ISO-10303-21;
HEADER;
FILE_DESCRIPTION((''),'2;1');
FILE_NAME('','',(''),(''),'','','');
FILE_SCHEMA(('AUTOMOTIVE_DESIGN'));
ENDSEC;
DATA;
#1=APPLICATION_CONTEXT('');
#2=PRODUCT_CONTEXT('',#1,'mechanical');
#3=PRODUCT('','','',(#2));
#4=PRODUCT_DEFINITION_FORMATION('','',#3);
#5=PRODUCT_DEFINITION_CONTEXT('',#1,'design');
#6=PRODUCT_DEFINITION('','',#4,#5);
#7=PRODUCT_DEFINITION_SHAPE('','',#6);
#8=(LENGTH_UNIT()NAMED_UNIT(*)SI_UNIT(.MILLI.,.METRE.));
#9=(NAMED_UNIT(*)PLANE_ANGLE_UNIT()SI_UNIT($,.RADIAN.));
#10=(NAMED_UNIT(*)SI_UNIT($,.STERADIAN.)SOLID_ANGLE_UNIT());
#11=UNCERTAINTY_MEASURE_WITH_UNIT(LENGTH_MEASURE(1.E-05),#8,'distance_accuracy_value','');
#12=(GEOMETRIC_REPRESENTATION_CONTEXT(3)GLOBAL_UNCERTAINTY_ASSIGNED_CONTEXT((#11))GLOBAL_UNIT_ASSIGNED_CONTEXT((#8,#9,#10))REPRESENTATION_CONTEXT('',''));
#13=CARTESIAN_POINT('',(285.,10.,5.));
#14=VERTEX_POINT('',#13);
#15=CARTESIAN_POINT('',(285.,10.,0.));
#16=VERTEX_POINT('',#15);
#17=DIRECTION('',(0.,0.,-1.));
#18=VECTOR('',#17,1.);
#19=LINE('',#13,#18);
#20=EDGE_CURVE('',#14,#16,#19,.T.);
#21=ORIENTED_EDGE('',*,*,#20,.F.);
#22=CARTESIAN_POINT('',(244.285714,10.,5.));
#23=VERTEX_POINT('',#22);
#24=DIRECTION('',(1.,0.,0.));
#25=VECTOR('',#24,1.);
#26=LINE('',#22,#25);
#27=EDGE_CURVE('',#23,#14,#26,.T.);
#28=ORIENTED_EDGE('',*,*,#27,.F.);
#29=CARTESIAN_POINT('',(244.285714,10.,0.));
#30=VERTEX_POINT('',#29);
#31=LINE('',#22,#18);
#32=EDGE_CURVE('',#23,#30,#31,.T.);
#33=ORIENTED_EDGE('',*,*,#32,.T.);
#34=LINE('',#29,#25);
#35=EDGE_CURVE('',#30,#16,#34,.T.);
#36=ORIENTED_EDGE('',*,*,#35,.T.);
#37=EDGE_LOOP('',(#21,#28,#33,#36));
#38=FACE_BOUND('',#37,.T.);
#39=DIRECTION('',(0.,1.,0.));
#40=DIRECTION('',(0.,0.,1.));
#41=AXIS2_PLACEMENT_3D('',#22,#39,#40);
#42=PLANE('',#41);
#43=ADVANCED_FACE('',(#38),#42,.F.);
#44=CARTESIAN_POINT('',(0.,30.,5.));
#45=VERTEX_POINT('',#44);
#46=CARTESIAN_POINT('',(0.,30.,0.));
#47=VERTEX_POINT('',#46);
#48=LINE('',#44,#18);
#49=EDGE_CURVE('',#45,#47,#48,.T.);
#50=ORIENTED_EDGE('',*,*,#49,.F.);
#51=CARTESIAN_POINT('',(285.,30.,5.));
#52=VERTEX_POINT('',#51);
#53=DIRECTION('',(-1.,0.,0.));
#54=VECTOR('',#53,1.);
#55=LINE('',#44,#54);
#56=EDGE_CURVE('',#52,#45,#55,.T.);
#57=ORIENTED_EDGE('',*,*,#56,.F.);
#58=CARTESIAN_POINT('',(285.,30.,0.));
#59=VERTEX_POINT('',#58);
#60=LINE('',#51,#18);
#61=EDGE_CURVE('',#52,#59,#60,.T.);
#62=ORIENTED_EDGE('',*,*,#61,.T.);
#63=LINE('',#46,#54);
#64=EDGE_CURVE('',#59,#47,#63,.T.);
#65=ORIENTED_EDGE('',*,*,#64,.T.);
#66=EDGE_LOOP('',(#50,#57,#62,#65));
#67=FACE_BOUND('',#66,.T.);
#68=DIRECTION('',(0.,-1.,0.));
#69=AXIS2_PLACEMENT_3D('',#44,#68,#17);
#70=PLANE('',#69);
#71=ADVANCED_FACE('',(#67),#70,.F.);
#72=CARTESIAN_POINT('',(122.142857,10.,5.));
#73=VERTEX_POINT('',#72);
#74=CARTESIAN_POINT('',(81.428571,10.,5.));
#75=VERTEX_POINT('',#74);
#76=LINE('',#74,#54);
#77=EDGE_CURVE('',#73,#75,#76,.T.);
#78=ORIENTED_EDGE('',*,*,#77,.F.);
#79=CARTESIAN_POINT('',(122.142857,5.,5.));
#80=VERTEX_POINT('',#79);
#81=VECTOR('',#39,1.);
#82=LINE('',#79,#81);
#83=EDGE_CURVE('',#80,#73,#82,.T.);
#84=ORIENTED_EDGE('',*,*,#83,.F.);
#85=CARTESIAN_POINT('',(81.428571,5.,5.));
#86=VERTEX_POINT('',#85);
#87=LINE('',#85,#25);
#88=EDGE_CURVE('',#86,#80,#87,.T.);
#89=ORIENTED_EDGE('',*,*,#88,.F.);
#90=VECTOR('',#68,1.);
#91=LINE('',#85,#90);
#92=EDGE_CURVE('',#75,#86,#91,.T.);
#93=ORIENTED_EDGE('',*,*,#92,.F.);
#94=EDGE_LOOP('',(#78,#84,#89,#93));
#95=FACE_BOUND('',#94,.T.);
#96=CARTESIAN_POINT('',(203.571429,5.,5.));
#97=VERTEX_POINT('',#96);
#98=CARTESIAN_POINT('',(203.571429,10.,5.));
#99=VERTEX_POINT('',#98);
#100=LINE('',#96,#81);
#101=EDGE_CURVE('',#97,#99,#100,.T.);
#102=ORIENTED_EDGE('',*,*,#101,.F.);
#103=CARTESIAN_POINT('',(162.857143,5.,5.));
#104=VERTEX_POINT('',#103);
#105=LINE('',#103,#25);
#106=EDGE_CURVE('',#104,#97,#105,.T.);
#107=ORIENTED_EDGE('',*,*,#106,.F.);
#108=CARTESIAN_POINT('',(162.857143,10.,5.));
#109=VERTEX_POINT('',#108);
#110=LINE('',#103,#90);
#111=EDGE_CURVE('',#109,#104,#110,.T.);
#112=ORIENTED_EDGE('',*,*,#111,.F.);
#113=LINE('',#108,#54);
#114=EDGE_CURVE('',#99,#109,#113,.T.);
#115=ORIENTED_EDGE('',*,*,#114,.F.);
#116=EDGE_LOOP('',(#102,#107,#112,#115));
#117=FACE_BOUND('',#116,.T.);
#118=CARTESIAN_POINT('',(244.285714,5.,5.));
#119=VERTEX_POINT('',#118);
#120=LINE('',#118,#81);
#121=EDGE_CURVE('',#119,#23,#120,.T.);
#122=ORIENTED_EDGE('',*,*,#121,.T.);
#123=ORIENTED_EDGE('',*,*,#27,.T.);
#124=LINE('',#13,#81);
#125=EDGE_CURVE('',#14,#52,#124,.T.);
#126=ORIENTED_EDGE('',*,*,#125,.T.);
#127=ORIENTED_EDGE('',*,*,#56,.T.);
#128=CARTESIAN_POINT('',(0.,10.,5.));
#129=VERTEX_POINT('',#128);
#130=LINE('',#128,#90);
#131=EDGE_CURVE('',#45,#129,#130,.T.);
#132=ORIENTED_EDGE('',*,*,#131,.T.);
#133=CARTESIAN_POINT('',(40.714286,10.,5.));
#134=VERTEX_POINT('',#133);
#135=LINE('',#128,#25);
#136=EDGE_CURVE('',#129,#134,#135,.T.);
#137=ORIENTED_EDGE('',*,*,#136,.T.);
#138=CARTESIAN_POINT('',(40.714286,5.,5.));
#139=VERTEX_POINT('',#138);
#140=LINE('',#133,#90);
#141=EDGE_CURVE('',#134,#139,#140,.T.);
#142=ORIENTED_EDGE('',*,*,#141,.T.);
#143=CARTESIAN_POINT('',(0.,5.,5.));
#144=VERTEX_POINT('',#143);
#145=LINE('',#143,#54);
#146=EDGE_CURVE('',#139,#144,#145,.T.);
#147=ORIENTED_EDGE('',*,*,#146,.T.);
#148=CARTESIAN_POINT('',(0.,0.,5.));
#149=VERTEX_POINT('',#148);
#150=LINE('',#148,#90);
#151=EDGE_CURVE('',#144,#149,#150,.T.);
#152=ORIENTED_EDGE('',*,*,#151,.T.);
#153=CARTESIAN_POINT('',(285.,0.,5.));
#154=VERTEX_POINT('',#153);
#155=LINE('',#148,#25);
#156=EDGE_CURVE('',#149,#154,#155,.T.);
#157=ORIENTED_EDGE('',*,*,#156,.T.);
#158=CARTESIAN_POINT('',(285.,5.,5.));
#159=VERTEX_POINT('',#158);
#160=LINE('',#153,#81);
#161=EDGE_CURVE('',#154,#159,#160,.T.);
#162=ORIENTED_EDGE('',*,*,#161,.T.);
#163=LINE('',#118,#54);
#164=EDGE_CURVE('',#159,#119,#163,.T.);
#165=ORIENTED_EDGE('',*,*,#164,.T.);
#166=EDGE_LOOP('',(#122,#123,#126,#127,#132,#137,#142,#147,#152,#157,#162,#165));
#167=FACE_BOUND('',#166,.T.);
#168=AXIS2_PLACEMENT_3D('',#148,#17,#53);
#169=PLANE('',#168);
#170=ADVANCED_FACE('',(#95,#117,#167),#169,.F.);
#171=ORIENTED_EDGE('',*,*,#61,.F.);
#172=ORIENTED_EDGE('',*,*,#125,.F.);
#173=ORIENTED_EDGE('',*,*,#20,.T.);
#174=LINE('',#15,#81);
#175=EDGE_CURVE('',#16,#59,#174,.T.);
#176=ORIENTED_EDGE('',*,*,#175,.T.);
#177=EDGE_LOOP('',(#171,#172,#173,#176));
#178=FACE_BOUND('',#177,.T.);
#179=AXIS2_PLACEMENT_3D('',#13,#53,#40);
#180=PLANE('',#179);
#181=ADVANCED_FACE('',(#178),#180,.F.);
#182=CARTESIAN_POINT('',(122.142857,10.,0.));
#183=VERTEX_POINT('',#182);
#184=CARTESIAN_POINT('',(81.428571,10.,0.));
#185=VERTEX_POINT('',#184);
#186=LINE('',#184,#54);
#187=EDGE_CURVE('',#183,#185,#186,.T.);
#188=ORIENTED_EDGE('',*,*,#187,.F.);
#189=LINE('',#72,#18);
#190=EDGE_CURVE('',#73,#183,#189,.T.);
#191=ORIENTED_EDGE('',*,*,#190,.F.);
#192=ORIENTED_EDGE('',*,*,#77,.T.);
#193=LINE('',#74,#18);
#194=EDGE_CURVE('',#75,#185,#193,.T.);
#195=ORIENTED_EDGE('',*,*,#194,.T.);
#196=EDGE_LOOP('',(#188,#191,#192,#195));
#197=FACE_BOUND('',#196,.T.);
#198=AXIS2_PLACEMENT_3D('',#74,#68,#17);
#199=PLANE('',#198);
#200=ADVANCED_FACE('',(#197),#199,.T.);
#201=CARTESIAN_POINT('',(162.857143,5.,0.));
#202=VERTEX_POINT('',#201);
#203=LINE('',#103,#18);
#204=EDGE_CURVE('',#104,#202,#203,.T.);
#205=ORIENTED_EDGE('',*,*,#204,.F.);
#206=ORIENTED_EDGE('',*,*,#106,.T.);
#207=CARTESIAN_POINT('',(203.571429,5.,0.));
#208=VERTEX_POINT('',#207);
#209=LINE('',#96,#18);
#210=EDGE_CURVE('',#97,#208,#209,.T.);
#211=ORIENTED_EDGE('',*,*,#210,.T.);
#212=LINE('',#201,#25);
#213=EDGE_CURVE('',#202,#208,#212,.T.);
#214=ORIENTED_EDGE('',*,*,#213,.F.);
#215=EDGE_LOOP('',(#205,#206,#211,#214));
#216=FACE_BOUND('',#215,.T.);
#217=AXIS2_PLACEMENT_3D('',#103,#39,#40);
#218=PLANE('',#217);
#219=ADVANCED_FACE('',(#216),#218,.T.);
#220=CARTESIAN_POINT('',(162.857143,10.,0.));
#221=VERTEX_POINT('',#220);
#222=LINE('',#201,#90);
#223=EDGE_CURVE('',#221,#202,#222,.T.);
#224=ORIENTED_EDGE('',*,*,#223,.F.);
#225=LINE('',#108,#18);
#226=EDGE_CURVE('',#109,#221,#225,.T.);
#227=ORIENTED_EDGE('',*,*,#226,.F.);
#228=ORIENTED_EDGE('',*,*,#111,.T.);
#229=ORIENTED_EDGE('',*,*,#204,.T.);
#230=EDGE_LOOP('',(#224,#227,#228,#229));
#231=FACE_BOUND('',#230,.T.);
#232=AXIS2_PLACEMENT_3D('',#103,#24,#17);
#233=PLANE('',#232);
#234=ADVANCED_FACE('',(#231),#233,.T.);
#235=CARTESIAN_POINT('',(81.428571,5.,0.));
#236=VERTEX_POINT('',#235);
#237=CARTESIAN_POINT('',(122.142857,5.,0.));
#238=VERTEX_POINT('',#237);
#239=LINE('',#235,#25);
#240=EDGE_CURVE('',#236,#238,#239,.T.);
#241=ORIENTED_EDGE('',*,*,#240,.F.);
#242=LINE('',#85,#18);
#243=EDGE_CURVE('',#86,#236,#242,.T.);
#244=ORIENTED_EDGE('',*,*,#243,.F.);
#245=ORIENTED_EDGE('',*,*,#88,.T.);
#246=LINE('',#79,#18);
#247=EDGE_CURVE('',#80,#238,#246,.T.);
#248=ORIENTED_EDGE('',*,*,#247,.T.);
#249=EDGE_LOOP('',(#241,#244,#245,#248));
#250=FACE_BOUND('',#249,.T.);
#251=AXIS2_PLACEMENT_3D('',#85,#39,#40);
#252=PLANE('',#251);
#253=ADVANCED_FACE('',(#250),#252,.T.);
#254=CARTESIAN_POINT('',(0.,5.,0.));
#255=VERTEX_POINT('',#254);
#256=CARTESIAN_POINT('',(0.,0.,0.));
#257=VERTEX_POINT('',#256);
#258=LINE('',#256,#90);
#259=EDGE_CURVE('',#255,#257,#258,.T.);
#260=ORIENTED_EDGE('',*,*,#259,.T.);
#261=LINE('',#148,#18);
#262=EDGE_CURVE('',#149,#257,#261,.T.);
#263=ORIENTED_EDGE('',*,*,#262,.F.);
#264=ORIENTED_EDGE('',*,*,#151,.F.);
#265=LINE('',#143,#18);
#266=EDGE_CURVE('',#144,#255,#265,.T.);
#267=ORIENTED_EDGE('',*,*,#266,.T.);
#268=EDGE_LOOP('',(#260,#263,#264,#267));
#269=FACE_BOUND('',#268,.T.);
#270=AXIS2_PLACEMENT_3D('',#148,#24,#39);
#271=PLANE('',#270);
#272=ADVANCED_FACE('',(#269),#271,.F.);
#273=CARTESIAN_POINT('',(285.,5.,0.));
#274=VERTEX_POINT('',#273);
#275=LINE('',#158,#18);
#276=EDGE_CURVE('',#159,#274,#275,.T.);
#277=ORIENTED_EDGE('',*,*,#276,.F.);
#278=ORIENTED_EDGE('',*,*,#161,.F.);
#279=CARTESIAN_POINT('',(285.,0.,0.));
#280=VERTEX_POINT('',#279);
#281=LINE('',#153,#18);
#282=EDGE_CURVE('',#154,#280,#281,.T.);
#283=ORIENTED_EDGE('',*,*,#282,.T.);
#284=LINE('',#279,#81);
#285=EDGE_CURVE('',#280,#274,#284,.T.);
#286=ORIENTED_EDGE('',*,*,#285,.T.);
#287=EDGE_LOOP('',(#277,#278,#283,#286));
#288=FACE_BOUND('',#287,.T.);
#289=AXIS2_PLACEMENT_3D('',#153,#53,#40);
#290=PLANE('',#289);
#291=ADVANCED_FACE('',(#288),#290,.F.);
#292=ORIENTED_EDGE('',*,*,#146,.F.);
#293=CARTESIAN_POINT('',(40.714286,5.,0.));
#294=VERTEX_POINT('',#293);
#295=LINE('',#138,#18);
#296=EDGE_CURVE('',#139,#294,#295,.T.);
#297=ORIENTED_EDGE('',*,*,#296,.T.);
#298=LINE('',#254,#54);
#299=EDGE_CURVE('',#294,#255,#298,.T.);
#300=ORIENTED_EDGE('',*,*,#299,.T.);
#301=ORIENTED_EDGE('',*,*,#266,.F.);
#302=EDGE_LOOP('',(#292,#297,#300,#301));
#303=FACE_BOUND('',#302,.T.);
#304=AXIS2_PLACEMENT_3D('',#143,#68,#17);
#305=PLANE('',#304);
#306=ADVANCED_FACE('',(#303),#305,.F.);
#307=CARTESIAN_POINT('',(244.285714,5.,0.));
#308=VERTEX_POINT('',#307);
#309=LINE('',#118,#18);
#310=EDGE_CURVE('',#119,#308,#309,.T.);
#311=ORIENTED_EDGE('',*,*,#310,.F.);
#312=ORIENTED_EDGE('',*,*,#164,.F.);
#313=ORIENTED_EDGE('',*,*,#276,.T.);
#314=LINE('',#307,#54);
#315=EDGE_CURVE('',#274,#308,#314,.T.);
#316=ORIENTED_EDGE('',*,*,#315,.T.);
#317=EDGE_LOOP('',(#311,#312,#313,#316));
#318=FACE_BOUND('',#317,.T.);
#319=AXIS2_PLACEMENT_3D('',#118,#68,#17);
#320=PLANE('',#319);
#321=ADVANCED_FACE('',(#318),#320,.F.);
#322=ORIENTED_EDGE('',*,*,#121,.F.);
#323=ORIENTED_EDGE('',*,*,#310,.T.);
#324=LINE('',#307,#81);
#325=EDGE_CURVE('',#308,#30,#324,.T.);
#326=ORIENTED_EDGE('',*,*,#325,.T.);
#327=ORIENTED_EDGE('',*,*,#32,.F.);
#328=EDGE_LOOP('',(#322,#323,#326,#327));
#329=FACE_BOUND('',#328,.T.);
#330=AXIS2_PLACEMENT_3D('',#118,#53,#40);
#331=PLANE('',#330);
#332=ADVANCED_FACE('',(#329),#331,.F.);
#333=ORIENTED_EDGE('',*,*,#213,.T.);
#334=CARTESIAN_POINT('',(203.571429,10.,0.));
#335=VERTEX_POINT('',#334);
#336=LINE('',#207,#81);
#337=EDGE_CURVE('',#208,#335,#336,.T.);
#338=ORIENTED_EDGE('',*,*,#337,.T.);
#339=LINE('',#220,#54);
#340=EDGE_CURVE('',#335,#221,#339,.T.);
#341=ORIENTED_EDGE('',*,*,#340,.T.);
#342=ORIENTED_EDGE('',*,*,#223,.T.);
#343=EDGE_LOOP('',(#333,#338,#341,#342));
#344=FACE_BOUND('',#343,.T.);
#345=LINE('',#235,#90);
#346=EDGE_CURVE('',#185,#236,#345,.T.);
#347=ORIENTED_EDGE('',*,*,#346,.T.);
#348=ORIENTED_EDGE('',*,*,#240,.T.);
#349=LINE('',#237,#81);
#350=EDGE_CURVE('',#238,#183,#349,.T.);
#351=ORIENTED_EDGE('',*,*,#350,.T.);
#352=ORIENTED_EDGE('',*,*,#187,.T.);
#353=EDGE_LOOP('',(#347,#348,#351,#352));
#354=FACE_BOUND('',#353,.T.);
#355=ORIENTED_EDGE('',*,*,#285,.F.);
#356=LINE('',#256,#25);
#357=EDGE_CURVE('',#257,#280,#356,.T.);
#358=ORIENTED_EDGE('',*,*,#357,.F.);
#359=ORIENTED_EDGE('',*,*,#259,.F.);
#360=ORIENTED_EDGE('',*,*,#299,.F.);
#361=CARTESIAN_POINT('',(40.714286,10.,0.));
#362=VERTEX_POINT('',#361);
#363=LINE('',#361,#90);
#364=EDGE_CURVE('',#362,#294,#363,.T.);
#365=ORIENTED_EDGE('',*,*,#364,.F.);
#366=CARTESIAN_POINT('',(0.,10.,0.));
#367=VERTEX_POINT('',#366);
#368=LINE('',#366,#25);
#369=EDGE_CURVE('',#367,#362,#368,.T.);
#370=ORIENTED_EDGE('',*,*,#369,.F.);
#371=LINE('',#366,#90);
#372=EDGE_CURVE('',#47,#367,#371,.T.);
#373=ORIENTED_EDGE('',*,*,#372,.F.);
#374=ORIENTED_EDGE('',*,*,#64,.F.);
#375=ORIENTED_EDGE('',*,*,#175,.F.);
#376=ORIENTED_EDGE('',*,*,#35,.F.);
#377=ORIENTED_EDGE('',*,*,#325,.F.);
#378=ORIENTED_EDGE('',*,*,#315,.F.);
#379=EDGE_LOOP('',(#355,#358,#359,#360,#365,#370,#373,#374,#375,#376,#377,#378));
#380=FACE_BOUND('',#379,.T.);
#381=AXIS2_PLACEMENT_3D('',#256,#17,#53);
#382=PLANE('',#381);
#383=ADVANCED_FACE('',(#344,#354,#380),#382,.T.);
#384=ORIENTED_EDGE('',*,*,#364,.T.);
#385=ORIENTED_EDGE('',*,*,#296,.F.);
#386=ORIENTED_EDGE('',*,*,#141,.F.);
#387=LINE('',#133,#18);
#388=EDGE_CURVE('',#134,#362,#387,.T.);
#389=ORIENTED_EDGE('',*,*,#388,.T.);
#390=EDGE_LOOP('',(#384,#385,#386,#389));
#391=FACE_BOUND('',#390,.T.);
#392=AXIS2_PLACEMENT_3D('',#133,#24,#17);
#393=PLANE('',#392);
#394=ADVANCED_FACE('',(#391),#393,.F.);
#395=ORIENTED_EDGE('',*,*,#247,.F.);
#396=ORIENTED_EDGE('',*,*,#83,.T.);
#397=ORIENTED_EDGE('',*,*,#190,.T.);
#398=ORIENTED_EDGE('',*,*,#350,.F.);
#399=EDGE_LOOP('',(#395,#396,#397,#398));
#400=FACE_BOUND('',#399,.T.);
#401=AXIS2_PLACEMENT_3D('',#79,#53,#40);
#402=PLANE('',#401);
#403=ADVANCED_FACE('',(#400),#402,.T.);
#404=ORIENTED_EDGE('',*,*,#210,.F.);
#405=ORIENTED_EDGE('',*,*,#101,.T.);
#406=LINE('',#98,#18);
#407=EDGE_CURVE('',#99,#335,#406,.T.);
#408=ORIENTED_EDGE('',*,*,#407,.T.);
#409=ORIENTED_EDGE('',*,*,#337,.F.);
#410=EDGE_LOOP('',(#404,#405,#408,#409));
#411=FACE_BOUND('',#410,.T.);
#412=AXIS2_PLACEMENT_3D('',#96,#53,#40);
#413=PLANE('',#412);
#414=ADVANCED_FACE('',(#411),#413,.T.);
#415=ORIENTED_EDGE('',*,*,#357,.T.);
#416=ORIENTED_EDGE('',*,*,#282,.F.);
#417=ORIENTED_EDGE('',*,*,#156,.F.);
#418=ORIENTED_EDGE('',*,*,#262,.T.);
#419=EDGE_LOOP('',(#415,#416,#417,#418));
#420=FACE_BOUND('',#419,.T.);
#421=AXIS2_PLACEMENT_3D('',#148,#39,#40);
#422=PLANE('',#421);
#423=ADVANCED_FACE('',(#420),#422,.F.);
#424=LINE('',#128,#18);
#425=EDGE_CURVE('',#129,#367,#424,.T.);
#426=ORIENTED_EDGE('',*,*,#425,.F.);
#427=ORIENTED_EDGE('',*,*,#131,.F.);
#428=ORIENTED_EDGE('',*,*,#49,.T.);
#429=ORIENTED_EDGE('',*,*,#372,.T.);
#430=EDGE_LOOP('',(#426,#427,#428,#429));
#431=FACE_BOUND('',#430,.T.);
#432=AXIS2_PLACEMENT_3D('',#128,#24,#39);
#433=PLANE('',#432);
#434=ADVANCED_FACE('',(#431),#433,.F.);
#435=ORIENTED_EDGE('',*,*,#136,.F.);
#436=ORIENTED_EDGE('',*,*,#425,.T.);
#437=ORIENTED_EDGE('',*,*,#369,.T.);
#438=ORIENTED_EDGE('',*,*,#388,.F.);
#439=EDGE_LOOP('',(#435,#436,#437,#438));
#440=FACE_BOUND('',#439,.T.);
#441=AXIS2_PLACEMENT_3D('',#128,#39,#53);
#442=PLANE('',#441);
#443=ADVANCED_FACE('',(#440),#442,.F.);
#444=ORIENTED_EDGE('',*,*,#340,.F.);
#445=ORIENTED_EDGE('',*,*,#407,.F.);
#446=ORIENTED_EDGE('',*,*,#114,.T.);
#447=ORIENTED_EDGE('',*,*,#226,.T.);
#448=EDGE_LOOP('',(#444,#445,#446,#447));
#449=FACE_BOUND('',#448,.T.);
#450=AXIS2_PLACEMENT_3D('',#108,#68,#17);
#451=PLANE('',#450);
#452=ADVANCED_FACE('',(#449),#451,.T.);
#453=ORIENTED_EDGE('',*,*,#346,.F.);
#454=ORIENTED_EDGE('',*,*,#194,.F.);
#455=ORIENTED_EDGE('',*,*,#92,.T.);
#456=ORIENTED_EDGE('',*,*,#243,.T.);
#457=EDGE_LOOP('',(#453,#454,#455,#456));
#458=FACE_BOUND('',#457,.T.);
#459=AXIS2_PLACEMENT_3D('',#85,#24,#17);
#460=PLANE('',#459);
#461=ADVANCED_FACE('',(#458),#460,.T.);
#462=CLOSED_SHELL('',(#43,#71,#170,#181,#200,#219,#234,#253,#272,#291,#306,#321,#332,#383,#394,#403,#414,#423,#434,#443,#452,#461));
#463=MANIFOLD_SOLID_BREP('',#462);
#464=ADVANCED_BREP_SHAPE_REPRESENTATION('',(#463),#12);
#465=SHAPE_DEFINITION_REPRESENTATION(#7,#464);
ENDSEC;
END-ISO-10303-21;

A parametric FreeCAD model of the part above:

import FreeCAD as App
import Part
import Sketcher

V = App.Vector
Q = App.Units.Quantity

doc = App.newDocument("Part")
body = doc.addObject("PartDesign::Body", "Body")

sketch1 = doc.addObject("Sketcher::SketchObject", "Sketch")
body.addObject(sketch1)
sketch1.AttachmentSupport = (doc.XY_Plane, [""])
sketch1.MapMode = "FlatFace"
sketch1.addGeometry(Part.LineSegment(V(0, 30, 0), V(0, 10, 0)), False)
sketch1.addGeometry(Part.LineSegment(V(0, 10, 0), V(41, 10, 0)), False)
sketch1.addGeometry(Part.LineSegment(V(41, 10, 0), V(41, 5, 0)), False)
sketch1.addGeometry(Part.LineSegment(V(41, 5, 0), V(0, 5, 0)), False)
sketch1.addGeometry(Part.LineSegment(V(0, 5, 0), V(0, 0, 0)), False)
sketch1.addGeometry(Part.LineSegment(V(0, 0, 0), V(285, 0, 0)), False)
sketch1.addGeometry(Part.LineSegment(V(285, 0, 0), V(285, 5, 0)), False)
sketch1.addGeometry(Part.LineSegment(V(285, 5, 0), V(244, 5, 0)), False)
sketch1.addGeometry(Part.LineSegment(V(244, 5, 0), V(244, 10, 0)), False)
sketch1.addGeometry(Part.LineSegment(V(244, 10, 0), V(285, 10, 0)), False)
sketch1.addGeometry(Part.LineSegment(V(285, 10, 0), V(285, 30, 0)), False)
sketch1.addGeometry(Part.LineSegment(V(285, 30, 0), V(0, 30, 0)), False)
sketch1.addGeometry(Part.LineSegment(V(163, 5, 0), V(163, 10, 0)), False)
sketch1.addGeometry(Part.LineSegment(V(163, 10, 0), V(204, 10, 0)), False)
sketch1.addGeometry(Part.LineSegment(V(204, 10, 0), V(204, 5, 0)), False)
sketch1.addGeometry(Part.LineSegment(V(204, 5, 0), V(163, 5, 0)), False)
sketch1.addGeometry(Part.LineSegment(V(81, 5, 0), V(81, 10, 0)), False)
sketch1.addGeometry(Part.LineSegment(V(81, 10, 0), V(122, 10, 0)), False)
sketch1.addGeometry(Part.LineSegment(V(122, 10, 0), V(122, 5, 0)), False)
sketch1.addGeometry(Part.LineSegment(V(122, 5, 0), V(81, 5, 0)), False)
sketch1.addConstraint(Sketcher.Constraint("Coincident", 0, 2, 1, 1))
sketch1.addConstraint(Sketcher.Constraint("Coincident", 1, 2, 2, 1))
sketch1.addConstraint(Sketcher.Constraint("Coincident", 2, 2, 3, 1))
sketch1.addConstraint(Sketcher.Constraint("Coincident", 3, 2, 4, 1))
sketch1.addConstraint(Sketcher.Constraint("Coincident", 4, 2, 5, 1))
sketch1.addConstraint(Sketcher.Constraint("Coincident", 5, 2, 6, 1))
sketch1.addConstraint(Sketcher.Constraint("Coincident", 6, 2, 7, 1))
sketch1.addConstraint(Sketcher.Constraint("Coincident", 7, 2, 8, 1))
sketch1.addConstraint(Sketcher.Constraint("Coincident", 8, 2, 9, 1))
sketch1.addConstraint(Sketcher.Constraint("Coincident", 9, 2, 10, 1))
sketch1.addConstraint(Sketcher.Constraint("Coincident", 10, 2, 11, 1))
sketch1.addConstraint(Sketcher.Constraint("Coincident", 11, 2, 0, 1))
sketch1.addConstraint(Sketcher.Constraint("Coincident", 12, 2, 13, 1))
sketch1.addConstraint(Sketcher.Constraint("Coincident", 13, 2, 14, 1))
sketch1.addConstraint(Sketcher.Constraint("Coincident", 14, 2, 15, 1))
sketch1.addConstraint(Sketcher.Constraint("Coincident", 15, 2, 12, 1))
sketch1.addConstraint(Sketcher.Constraint("Coincident", 16, 2, 17, 1))
sketch1.addConstraint(Sketcher.Constraint("Coincident", 17, 2, 18, 1))
sketch1.addConstraint(Sketcher.Constraint("Coincident", 18, 2, 19, 1))
sketch1.addConstraint(Sketcher.Constraint("Coincident", 19, 2, 16, 1))
sketch1.addConstraint(Sketcher.Constraint("Vertical", 0))
sketch1.addConstraint(Sketcher.Constraint("Horizontal", 1))
sketch1.addConstraint(Sketcher.Constraint("Vertical", 2))
sketch1.addConstraint(Sketcher.Constraint("Horizontal", 3))
sketch1.addConstraint(Sketcher.Constraint("Vertical", 4))
sketch1.addConstraint(Sketcher.Constraint("Horizontal", 5))
sketch1.addConstraint(Sketcher.Constraint("Vertical", 6))
sketch1.addConstraint(Sketcher.Constraint("Horizontal", 7))
sketch1.addConstraint(Sketcher.Constraint("Vertical", 8))
sketch1.addConstraint(Sketcher.Constraint("Horizontal", 9))
sketch1.addConstraint(Sketcher.Constraint("Vertical", 10))
sketch1.addConstraint(Sketcher.Constraint("Horizontal", 11))
sketch1.addConstraint(Sketcher.Constraint("Vertical", 12))
sketch1.addConstraint(Sketcher.Constraint("Horizontal", 13))
sketch1.addConstraint(Sketcher.Constraint("Vertical", 14))
sketch1.addConstraint(Sketcher.Constraint("Horizontal", 15))
sketch1.addConstraint(Sketcher.Constraint("Vertical", 16))
sketch1.addConstraint(Sketcher.Constraint("Horizontal", 17))
sketch1.addConstraint(Sketcher.Constraint("Vertical", 18))
sketch1.addConstraint(Sketcher.Constraint("Horizontal", 19))
sketch1.addConstraint(Sketcher.Constraint("Coincident", 4, 2, -1, 1))
sketch1.addConstraint(Sketcher.Constraint("PointOnObject", 0, 2, -2))
sketch1.addConstraint(Sketcher.Constraint("Horizontal", 3, 2, 6, 2))
sketch1.addConstraint(Sketcher.Constraint("Horizontal", 1, 2, 8, 2))
sketch1.addConstraint(Sketcher.Constraint("Horizontal", 9, 2, 12, 2))
sketch1.addConstraint(Sketcher.Constraint("Horizontal", 7, 2, 14, 2))
sketch1.addConstraint(Sketcher.Constraint("Horizontal", 13, 2, 16, 2))
sketch1.addConstraint(Sketcher.Constraint("Horizontal", 15, 2, 18, 2))
sketch1.addConstraint(Sketcher.Constraint("Vertical", 6, 2, 9, 2))
sketch1.addConstraint(Sketcher.Constraint("Equal", 3, 7))
sketch1.addConstraint(Sketcher.Constraint("Equal", 9, 13))
sketch1.addConstraint(Sketcher.Constraint("Equal", 15, 17))
sketch1.addConstraint(Sketcher.Constraint("Equal", 2, 4))
sketch1.addConstraint(Sketcher.Constraint("DistanceX", 5, 1, 5, 2, Q("285 mm")))
sketch1.addConstraint(Sketcher.Constraint("DistanceY", 0, 2, 0, 1, Q("20 mm")))
sketch1.addConstraint(Sketcher.Constraint("DistanceY", 2, 2, 2, 1, Q("5 mm")))
sketch1.addConstraint(Sketcher.Constraint("DistanceX", 1, 1, 1, 2, Q("40.714286 mm")))
sketch1.addConstraint(Sketcher.Constraint("DistanceX", -1, 1, 13, 2, Q("203.571429 mm")))
sketch1.addConstraint(Sketcher.Constraint("DistanceX", -1, 1, 16, 2, Q("81.428571 mm")))
pad1 = doc.addObject("PartDesign::Pad", "Pad")
body.addObject(pad1)
pad1.Profile = sketch1
pad1.Length = 5

doc.recompute()
